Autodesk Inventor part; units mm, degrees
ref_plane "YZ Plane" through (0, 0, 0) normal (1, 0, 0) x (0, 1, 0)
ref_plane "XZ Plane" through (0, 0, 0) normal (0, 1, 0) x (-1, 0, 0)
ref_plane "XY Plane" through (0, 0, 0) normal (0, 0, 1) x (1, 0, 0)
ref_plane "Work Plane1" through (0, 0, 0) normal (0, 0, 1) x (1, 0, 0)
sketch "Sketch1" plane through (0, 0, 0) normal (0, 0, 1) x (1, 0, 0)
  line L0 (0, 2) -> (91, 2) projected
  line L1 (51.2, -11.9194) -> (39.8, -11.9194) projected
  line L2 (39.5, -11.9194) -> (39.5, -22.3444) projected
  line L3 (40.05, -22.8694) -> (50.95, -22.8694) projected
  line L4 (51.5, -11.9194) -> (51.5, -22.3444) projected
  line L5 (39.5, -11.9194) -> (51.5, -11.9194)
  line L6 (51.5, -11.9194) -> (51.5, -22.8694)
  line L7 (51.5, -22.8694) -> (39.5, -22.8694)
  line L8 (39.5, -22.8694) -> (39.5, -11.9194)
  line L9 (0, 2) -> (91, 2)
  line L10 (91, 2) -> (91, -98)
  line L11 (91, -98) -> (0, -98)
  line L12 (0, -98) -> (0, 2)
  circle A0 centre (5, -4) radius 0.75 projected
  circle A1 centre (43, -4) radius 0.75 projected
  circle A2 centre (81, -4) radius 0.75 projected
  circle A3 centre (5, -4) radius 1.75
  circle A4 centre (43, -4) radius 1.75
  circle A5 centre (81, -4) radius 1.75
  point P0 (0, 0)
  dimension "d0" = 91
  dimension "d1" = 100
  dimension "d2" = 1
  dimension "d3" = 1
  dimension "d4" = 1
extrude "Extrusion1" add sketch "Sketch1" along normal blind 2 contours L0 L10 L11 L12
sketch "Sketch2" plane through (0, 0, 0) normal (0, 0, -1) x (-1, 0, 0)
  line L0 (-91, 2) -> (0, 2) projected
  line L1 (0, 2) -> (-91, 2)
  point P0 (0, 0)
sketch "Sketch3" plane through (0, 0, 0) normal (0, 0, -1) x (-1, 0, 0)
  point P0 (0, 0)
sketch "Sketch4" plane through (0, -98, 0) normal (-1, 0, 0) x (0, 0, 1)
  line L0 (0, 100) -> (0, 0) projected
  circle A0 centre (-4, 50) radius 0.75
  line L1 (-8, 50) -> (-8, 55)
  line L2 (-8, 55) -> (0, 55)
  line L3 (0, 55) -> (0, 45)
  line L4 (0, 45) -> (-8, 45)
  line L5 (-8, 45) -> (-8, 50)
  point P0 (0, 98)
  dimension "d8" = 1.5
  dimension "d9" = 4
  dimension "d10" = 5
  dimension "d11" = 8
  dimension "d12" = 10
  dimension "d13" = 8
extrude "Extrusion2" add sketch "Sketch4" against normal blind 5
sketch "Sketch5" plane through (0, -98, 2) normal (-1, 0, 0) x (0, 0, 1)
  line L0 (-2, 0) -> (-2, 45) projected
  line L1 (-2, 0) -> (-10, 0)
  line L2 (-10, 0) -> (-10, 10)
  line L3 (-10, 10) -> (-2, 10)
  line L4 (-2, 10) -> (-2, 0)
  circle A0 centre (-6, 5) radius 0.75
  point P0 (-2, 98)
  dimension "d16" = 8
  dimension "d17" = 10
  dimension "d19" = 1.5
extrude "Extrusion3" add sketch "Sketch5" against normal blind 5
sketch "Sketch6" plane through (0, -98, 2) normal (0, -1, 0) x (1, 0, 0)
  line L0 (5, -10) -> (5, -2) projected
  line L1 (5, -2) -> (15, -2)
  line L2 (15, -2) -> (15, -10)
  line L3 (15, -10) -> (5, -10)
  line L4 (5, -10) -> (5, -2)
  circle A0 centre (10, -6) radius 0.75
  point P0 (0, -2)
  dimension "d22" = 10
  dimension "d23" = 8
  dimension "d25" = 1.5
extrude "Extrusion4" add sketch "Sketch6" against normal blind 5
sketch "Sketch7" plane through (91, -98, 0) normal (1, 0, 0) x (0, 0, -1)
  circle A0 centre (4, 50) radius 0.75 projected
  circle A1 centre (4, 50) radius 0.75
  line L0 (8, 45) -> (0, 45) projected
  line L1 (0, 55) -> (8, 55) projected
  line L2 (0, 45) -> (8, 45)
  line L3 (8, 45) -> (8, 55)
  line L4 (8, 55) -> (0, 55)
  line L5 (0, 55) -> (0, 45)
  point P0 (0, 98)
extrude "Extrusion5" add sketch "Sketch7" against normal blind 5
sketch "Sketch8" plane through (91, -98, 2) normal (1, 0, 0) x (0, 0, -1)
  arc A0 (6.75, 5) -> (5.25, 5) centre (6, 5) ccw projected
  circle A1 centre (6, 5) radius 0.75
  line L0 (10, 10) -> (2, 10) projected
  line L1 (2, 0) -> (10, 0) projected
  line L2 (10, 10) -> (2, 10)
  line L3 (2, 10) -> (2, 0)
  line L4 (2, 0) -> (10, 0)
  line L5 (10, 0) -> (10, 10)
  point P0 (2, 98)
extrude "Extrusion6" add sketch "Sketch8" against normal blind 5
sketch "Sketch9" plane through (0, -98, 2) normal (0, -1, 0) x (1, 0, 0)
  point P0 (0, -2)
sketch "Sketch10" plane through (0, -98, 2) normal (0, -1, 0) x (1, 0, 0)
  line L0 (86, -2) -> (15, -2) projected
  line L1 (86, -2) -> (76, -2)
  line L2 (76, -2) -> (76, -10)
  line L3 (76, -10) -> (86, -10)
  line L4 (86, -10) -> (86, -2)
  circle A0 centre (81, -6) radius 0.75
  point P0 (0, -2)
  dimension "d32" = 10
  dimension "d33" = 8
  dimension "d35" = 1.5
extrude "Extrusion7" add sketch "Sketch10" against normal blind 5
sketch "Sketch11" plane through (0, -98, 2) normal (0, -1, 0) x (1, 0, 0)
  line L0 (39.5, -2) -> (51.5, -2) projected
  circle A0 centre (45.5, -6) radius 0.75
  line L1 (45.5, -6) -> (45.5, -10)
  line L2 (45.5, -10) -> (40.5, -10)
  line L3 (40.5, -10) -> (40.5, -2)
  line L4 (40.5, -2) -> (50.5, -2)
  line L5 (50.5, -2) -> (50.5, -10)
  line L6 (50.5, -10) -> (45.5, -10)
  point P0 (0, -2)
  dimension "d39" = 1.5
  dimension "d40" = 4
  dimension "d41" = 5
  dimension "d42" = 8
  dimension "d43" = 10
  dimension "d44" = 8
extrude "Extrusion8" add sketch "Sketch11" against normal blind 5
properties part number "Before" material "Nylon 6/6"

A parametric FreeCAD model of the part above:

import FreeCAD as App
import Part
import Sketcher
from FreeCAD import Vector


def add_polygon(sketch, points):
    """Adds a closed chain of lines whose ends are joined by coincident constraints."""
    first, n = sketch.GeometryCount, len(points)
    for a, b in zip(points, points[1:] + points[:1]):
        sketch.addGeometry(Part.LineSegment(App.Vector(*a, 0), App.Vector(*b, 0)), False)
    for i in range(n):
        sketch.addConstraint(Sketcher.Constraint("Coincident", first + i, 2, first + (i + 1) % n, 1))

doc = App.newDocument("Part")
body = doc.addObject("PartDesign::Body", "Body")

# Sketch on XY plane
sketch1 = body.newObject("Sketcher::SketchObject", "Sketch")
sketch1.AttachmentSupport = (doc.getObject("XY_Plane"), [""])
sketch1.MapMode = "FlatFace"
add_polygon(sketch1, [(91, 2), (0, 2), (0, -98), (91, -98)])  # lines 0-3
sketch1.addGeometry(Part.Circle(Vector(5, -4, 0), Vector(0, 0, 1), 1.8), False)  # 4
sketch1.addGeometry(Part.Circle(Vector(43, -4, 0), Vector(0, 0, 1), 1.8), False)  # 5
add_polygon(sketch1, [(39.5, -11.9), (51.5, -11.9), (51.5, -22.9), (39.5, -22.9)])  # lines 6-9
sketch1.addGeometry(Part.Circle(Vector(81, -4, 0), Vector(0, 0, 1), 1.8), False)  # 10
sketch1.addConstraint(Sketcher.Constraint("Horizontal", 0))
sketch1.addConstraint(Sketcher.Constraint("Vertical", 1))
sketch1.addConstraint(Sketcher.Constraint("Horizontal", 2))
sketch1.addConstraint(Sketcher.Constraint("Vertical", 3))
sketch1.addConstraint(Sketcher.Constraint("Horizontal", 6))
sketch1.addConstraint(Sketcher.Constraint("Vertical", 7))
sketch1.addConstraint(Sketcher.Constraint("Horizontal", 8))
sketch1.addConstraint(Sketcher.Constraint("Vertical", 9))
sketch1.addConstraint(Sketcher.Constraint("Equal", 4, 5))
sketch1.addConstraint(Sketcher.Constraint("Equal", 5, 10))
sketch1.addConstraint(Sketcher.Constraint("PointOnObject", 0, 2, -2))
sketch1.addConstraint(Sketcher.Constraint("Horizontal", 4, 3, 5, 3))
sketch1.addConstraint(Sketcher.Constraint("Horizontal", 5, 3, 10, 3))
sketch1.addConstraint(Sketcher.Constraint("DistanceX", 0, 2, 0, 1, 91.0))
sketch1.addConstraint(Sketcher.Constraint("DistanceY", 1, 2, 1, 1, 100.0))
sketch1.addConstraint(Sketcher.Constraint("Diameter", 4, 3.5))
sketch1.addConstraint(Sketcher.Constraint("DistanceX", 6, 1, 6, 2, 12.0))
sketch1.addConstraint(Sketcher.Constraint("DistanceX", -1, 1, 4, 3, 5.0))
sketch1.addConstraint(Sketcher.Constraint("DistanceY", 4, 3, -1, 1, 4.0))
sketch1.addConstraint(Sketcher.Constraint("DistanceX", -1, 1, 5, 3, 43.0))
sketch1.addConstraint(Sketcher.Constraint("DistanceX", -1, 1, 10, 3, 81.0))
sketch1.addConstraint(Sketcher.Constraint("DistanceY", -1, 1, 0, 2, 2.0))
sketch1.addConstraint(Sketcher.Constraint("DistanceY", 7, 2, 7, 1, 10.95))
sketch1.addConstraint(Sketcher.Constraint("DistanceX", -1, 1, 6, 2, 51.5))
sketch1.addConstraint(Sketcher.Constraint("DistanceY", 6, 2, -1, 1, 11.9194))
pad1 = body.newObject("PartDesign::Pad", "Pad")
pad1.Profile = sketch1
pad1.Length = 2

# Sketch on YZ plane
sketch2 = body.newObject("Sketcher::SketchObject", "Sketch001")
sketch2.AttachmentSupport = (doc.getObject("YZ_Plane"), [""])
sketch2.MapMode = "FlatFace"
add_polygon(sketch2, [(-53, 0), (-43, 0), (-43, -8), (-53, -8)])  # lines 0-3
sketch2.addGeometry(Part.Circle(Vector(-48, -4, 0), Vector(0, 0, 1), 0.8), False)  # 4
sketch2.addConstraint(Sketcher.Constraint("Horizontal", 0))
sketch2.addConstraint(Sketcher.Constraint("Vertical", 1))
sketch2.addConstraint(Sketcher.Constraint("Horizontal", 2))
sketch2.addConstraint(Sketcher.Constraint("Vertical", 3))
sketch2.addConstraint(Sketcher.Constraint("PointOnObject", 0, 2, -1))
sketch2.addConstraint(Sketcher.Constraint("Diameter", 4, 1.5))
sketch2.addConstraint(Sketcher.Constraint("DistanceX", 0, 1, 0, 2, 10.0))
sketch2.addConstraint(Sketcher.Constraint("DistanceY", 1, 2, 1, 1, 8.0))
sketch2.addConstraint(Sketcher.Constraint("DistanceY", 4, 3, -1, 1, 4.0))
sketch2.addConstraint(Sketcher.Constraint("DistanceX", 4, 3, 0, 2, 5.0))
sketch2.addConstraint(Sketcher.Constraint("DistanceX", 4, 3, -1, 1, 48.0))
pad2 = body.newObject("PartDesign::Pad", "Pad001")
pad2.Profile = sketch2
pad2.Length = 5

# Sketch on YZ plane
sketch3 = body.newObject("Sketcher::SketchObject", "Sketch002")
sketch3.AttachmentSupport = (doc.getObject("YZ_Plane"), [""])
sketch3.MapMode = "FlatFace"
add_polygon(sketch3, [(-98, -8), (-98, 0), (-88, 0), (-88, -8)])  # lines 0-3
sketch3.addGeometry(Part.Circle(Vector(-93, -4, 0), Vector(0, 0, 1), 0.8), False)  # 4
sketch3.addConstraint(Sketcher.Constraint("Vertical", 0))
sketch3.addConstraint(Sketcher.Constraint("Horizontal", 1))
sketch3.addConstraint(Sketcher.Constraint("Vertical", 2))
sketch3.addConstraint(Sketcher.Constraint("Horizontal", 3))
sketch3.addConstraint(Sketcher.Constraint("PointOnObject", 0, 2, -1))
sketch3.addConstraint(Sketcher.Constraint("Diameter", 4, 1.5))
sketch3.addConstraint(Sketcher.Constraint("DistanceX", 1, 1, 1, 2, 10.0))
sketch3.addConstraint(Sketcher.Constraint("DistanceY", 0, 1, 0, 2, 8.0))
sketch3.addConstraint(Sketcher.Constraint("DistanceX", 4, 3, -1, 1, 93.0))
sketch3.addConstraint(Sketcher.Constraint("DistanceY", 4, 3, -1, 1, 4.0))
sketch3.addConstraint(Sketcher.Constraint("DistanceX", 0, 2, -1, 1, 98.0))
pad3 = body.newObject("PartDesign::Pad", "Pad002")
pad3.Profile = sketch3
pad3.Length = 5

# Sketch on XZ plane
sketch4 = body.newObject("Sketcher::SketchObject", "Sketch003")
sketch4.AttachmentSupport = (doc.getObject("XZ_Plane"), [""])
sketch4.MapMode = "FlatFace"
sketch4.AttachmentOffset = App.Placement(Vector(0, 0, 98), App.Rotation())
add_polygon(sketch4, [(5, 0), (5, -8), (15, -8), (15, 0)])  # lines 0-3
sketch4.addGeometry(Part.Circle(Vector(10, -4, 0), Vector(0, 0, 1), 0.8), False)  # 4
sketch4.addConstraint(Sketcher.Constraint("Vertical", 0))
sketch4.addConstraint(Sketcher.Constraint("Horizontal", 1))
sketch4.addConstraint(Sketcher.Constraint("Vertical", 2))
sketch4.addConstraint(Sketcher.Constraint("Horizontal", 3))
sketch4.addConstraint(Sketcher.Constraint("PointOnObject", 2, 2, -1))
sketch4.addConstraint(Sketcher.Constraint("Diameter", 4, 1.5))
sketch4.addConstraint(Sketcher.Constraint("DistanceX", 1, 1, 1, 2, 10.0))
sketch4.addConstraint(Sketcher.Constraint("DistanceY", 0, 2, 0, 1, 8.0))
sketch4.addConstraint(Sketcher.Constraint("DistanceX", -1, 1, 4, 3, 10.0))
sketch4.addConstraint(Sketcher.Constraint("DistanceY", 4, 3, -1, 1, 4.0))
sketch4.addConstraint(Sketcher.Constraint("DistanceX", -1, 1, 0, 2, 5.0))
pad4 = body.newObject("PartDesign::Pad", "Pad003")
pad4.Profile = sketch4
pad4.Length = 5
pad4.Reversed = True

# Sketch on YZ plane
sketch5 = body.newObject("Sketcher::SketchObject", "Sketch004")
sketch5.AttachmentSupport = (doc.getObject("YZ_Plane"), [""])
sketch5.MapMode = "FlatFace"
sketch5.AttachmentOffset = App.Placement(Vector(0, 0, 91), App.Rotation())
add_polygon(sketch5, [(-53, 0), (-53, -8), (-43, -8), (-43, 0)])  # lines 0-3
sketch5.addGeometry(Part.Circle(Vector(-48, -4, 0), Vector(0, 0, 1), 0.8), False)  # 4
sketch5.addConstraint(Sketcher.Constraint("Vertical", 0))
sketch5.addConstraint(Sketcher.Constraint("Horizontal", 1))
sketch5.addConstraint(Sketcher.Constraint("Vertical", 2))
sketch5.addConstraint(Sketcher.Constraint("Horizontal", 3))
sketch5.addConstraint(Sketcher.Constraint("PointOnObject", 2, 2, -1))
sketch5.addConstraint(Sketcher.Constraint("Diameter", 4, 1.5))
sketch5.addConstraint(Sketcher.Constraint("DistanceX", 1, 1, 1, 2, 10.0))
sketch5.addConstraint(Sketcher.Constraint("DistanceY", 0, 2, 0, 1, 8.0))
sketch5.addConstraint(Sketcher.Constraint("DistanceX", 4, 3, -1, 1, 48.0))
sketch5.addConstraint(Sketcher.Constraint("DistanceY", 4, 3, -1, 1, 4.0))
sketch5.addConstraint(Sketcher.Constraint("DistanceX", 0, 2, -1, 1, 53.0))
pad5 = body.newObject("PartDesign::Pad", "Pad004")
pad5.Profile = sketch5
pad5.Length = 5
pad5.Reversed = True

# Sketch on YZ plane
sketch6 = body.newObject("Sketcher::SketchObject", "Sketch005")
sketch6.AttachmentSupport = (doc.getObject("YZ_Plane"), [""])
sketch6.MapMode = "FlatFace"
sketch6.AttachmentOffset = App.Placement(Vector(0, 0, 91), App.Rotation())
add_polygon(sketch6, [(-98, -8), (-88, -8), (-88, 0), (-98, 0)])  # lines 0-3
sketch6.addGeometry(Part.Circle(Vector(-93, -4, 0), Vector(0, 0, 1), 0.8), False)  # 4
sketch6.addConstraint(Sketcher.Constraint("Horizontal", 0))
sketch6.addConstraint(Sketcher.Constraint("Vertical", 1))
sketch6.addConstraint(Sketcher.Constraint("Horizontal", 2))
sketch6.addConstraint(Sketcher.Constraint("Vertical", 3))
sketch6.addConstraint(Sketcher.Constraint("PointOnObject", 1, 2, -1))
sketch6.addConstraint(Sketcher.Constraint("Diameter", 4, 1.5))
sketch6.addConstraint(Sketcher.Constraint("DistanceX", 0, 1, 0, 2, 10.0))
sketch6.addConstraint(Sketcher.Constraint("DistanceY", 1, 1, 1, 2, 8.0))
sketch6.addConstraint(Sketcher.Constraint("DistanceX", 4, 3, -1, 1, 93.0))
sketch6.addConstraint(Sketcher.Constraint("DistanceY", 4, 3, -1, 1, 4.0))
sketch6.addConstraint(Sketcher.Constraint("DistanceX", 0, 2, -1, 1, 88.0))
pad6 = body.newObject("PartDesign::Pad", "Pad005")
pad6.Profile = sketch6
pad6.Length = 5
pad6.Reversed = True

# Sketch on XZ plane
sketch7 = body.newObject("Sketcher::SketchObject", "Sketch006")
sketch7.AttachmentSupport = (doc.getObject("XZ_Plane"), [""])
sketch7.MapMode = "FlatFace"
sketch7.AttachmentOffset = App.Placement(Vector(0, 0, 98), App.Rotation())
add_polygon(sketch7, [(86, -8), (86, 0), (76, 0), (76, -8)])  # lines 0-3
sketch7.addGeometry(Part.Circle(Vector(81, -4, 0), Vector(0, 0, 1), 0.8), False)  # 4
sketch7.addConstraint(Sketcher.Constraint("Vertical", 0))
sketch7.addConstraint(Sketcher.Constraint("Horizontal", 1))
sketch7.addConstraint(Sketcher.Constraint("Vertical", 2))
sketch7.addConstraint(Sketcher.Constraint("Horizontal", 3))
sketch7.addConstraint(Sketcher.Constraint("PointOnObject", 0, 2, -1))
sketch7.addConstraint(Sketcher.Constraint("Diameter", 4, 1.5))
sketch7.addConstraint(Sketcher.Constraint("DistanceX", 1, 2, 1, 1, 10.0))
sketch7.addConstraint(Sketcher.Constraint("DistanceY", 0, 1, 0, 2, 8.0))
sketch7.addConstraint(Sketcher.Constraint("DistanceX", -1, 1, 4, 3, 81.0))
sketch7.addConstraint(Sketcher.Constraint("DistanceY", 4, 3, -1, 1, 4.0))
sketch7.addConstraint(Sketcher.Constraint("DistanceX", -1, 1, 0, 2, 86.0))
pad7 = body.newObject("PartDesign::Pad", "Pad006")
pad7.Profile = sketch7
pad7.Length = 5
pad7.Reversed = True

# Sketch on XZ plane
sketch8 = body.newObject("Sketcher::SketchObject", "Sketch007")
sketch8.AttachmentSupport = (doc.getObject("XZ_Plane"), [""])
sketch8.MapMode = "FlatFace"
sketch8.AttachmentOffset = App.Placement(Vector(0, 0, 98), App.Rotation())
add_polygon(sketch8, [(50.5, 0), (40.5, 0), (40.5, -8), (45.5, -8), (50.5, -8)])  # lines 0-4
sketch8.addGeometry(Part.Circle(Vector(45.5, -4, 0), Vector(0, 0, 1), 0.8), False)  # 5
sketch8.addConstraint(Sketcher.Constraint("Horizontal", 0))
sketch8.addConstraint(Sketcher.Constraint("Vertical", 1))
sketch8.addConstraint(Sketcher.Constraint("Horizontal", 2))
sketch8.addConstraint(Sketcher.Constraint("Horizontal", 3))
sketch8.addConstraint(Sketcher.Constraint("Vertical", 4))
sketch8.addConstraint(Sketcher.Constraint("PointOnObject", 0, 2, -1))
sketch8.addConstraint(Sketcher.Constraint("Vertical", 5, 3, 2, 2))
sketch8.addConstraint(Sketcher.Constraint("Equal", 2, 3))
sketch8.addConstraint(Sketcher.Constraint("Diameter", 5, 1.5))
sketch8.addConstraint(Sketcher.Constraint("DistanceX", 0, 2, 0, 1, 10.0))
sketch8.addConstraint(Sketcher.Constraint("DistanceY", 1, 2, 1, 1, 8.0))
sketch8.addConstraint(Sketcher.Constraint("DistanceY", 5, 3, -1, 1, 4.0))
sketch8.addConstraint(Sketcher.Constraint("DistanceX", -1, 1, 5, 3, 45.5))
pad8 = body.newObject("PartDesign::Pad", "Pad007")
pad8.Profile = sketch8
pad8.Length = 5
pad8.Reversed = True

doc.recompute()
